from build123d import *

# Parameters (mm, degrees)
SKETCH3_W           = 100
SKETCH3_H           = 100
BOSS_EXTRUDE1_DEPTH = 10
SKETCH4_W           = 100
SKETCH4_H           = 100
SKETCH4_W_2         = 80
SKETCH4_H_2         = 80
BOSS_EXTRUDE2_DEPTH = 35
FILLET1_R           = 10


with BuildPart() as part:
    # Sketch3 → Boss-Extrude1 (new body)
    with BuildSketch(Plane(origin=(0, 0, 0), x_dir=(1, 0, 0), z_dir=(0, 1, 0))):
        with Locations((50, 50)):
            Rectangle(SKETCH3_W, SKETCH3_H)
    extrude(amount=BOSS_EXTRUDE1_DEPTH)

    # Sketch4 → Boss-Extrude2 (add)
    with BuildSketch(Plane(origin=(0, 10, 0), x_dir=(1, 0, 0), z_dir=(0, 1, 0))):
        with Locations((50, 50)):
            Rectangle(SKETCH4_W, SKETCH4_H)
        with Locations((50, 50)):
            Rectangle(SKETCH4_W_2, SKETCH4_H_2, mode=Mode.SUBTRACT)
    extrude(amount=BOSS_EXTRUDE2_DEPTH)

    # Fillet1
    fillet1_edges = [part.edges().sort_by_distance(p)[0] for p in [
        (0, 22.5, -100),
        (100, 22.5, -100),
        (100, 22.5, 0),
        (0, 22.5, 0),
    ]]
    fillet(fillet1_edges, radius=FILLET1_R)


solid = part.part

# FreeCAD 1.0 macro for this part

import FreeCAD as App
import Part
import Sketcher
from FreeCAD import Vector


def edges_at(feature, points):
    """Names of the edges that pass closest to the given points."""
    edges = feature.Shape.Edges
    near = lambda p: min(range(len(edges)), key=lambda i: edges[i].distToShape(Part.Vertex(*p))[0])
    return sorted({f"Edge{near(p) + 1}" for p in points})

doc = App.newDocument("Part")
body = doc.addObject("PartDesign::Body", "Body")

sketch1 = body.newObject("Sketcher::SketchObject", "Sketch")
sketch1.AttachmentSupport = (doc.getObject("XZ_Plane"), [""])
sketch1.MapMode = "FlatFace"
sketch1.addGeometry(Part.LineSegment(Vector(0, -100, 0), Vector(0, 0, 0)), False)
sketch1.addGeometry(Part.LineSegment(Vector(0, 0, 0), Vector(100, 0, 0)), False)
sketch1.addGeometry(Part.LineSegment(Vector(100, 0, 0), Vector(100, -100, 0)), False)
sketch1.addGeometry(Part.LineSegment(Vector(100, -100, 0), Vector(0, -100, 0)), False)
sketch1.addConstraint(Sketcher.Constraint("Coincident", 0, 2, 1, 1))
sketch1.addConstraint(Sketcher.Constraint("Coincident", 1, 2, 2, 1))
sketch1.addConstraint(Sketcher.Constraint("Coincident", 2, 2, 3, 1))
sketch1.addConstraint(Sketcher.Constraint("Coincident", 3, 2, 0, 1))
sketch1.addConstraint(Sketcher.Constraint("Vertical", 0))
sketch1.addConstraint(Sketcher.Constraint("Horizontal", 1))
sketch1.addConstraint(Sketcher.Constraint("Vertical", 2))
sketch1.addConstraint(Sketcher.Constraint("Horizontal", 3))
sketch1.addConstraint(Sketcher.Constraint("Coincident", 0, 2, -1, 1))
sketch1.addConstraint(Sketcher.Constraint("Equal", 3, 0))
sketch1.addConstraint(Sketcher.Constraint("DistanceX", 1, 1, 1, 2, 100.0))
pad1 = body.newObject("PartDesign::Pad", "Pad")
pad1.Profile = sketch1
pad1.Length = 10
pad1.Reversed = True

sketch2 = body.newObject("Sketcher::SketchObject", "Sketch001")
sketch2.AttachmentSupport = (doc.getObject("XZ_Plane"), [""])
sketch2.MapMode = "FlatFace"
sketch2.AttachmentOffset = App.Placement(Vector(0, 0, -10), App.Rotation())
sketch2.addGeometry(Part.LineSegment(Vector(0, -100, 0), Vector(0, 0, 0)), False)
sketch2.addGeometry(Part.LineSegment(Vector(0, 0, 0), Vector(100, 0, 0)), False)
sketch2.addGeometry(Part.LineSegment(Vector(100, 0, 0), Vector(100, -100, 0)), False)
sketch2.addGeometry(Part.LineSegment(Vector(100, -100, 0), Vector(0, -100, 0)), False)
sketch2.addGeometry(Part.LineSegment(Vector(90, -10, 0), Vector(10, -10, 0)), False)
sketch2.addGeometry(Part.LineSegment(Vector(10, -10, 0), Vector(10, -90, 0)), False)
sketch2.addGeometry(Part.LineSegment(Vector(10, -90, 0), Vector(90, -90, 0)), False)
sketch2.addGeometry(Part.LineSegment(Vector(90, -90, 0), Vector(90, -10, 0)), False)
sketch2.addConstraint(Sketcher.Constraint("Coincident", 0, 2, 1, 1))
sketch2.addConstraint(Sketcher.Constraint("Coincident", 1, 2, 2, 1))
sketch2.addConstraint(Sketcher.Constraint("Coincident", 2, 2, 3, 1))
sketch2.addConstraint(Sketcher.Constraint("Coincident", 3, 2, 0, 1))
sketch2.addConstraint(Sketcher.Constraint("Coincident", 4, 2, 5, 1))
sketch2.addConstraint(Sketcher.Constraint("Coincident", 5, 2, 6, 1))
sketch2.addConstraint(Sketcher.Constraint("Coincident", 6, 2, 7, 1))
sketch2.addConstraint(Sketcher.Constraint("Coincident", 7, 2, 4, 1))
sketch2.addConstraint(Sketcher.Constraint("Vertical", 0))
sketch2.addConstraint(Sketcher.Constraint("Horizontal", 1))
sketch2.addConstraint(Sketcher.Constraint("Vertical", 2))
sketch2.addConstraint(Sketcher.Constraint("Horizontal", 3))
sketch2.addConstraint(Sketcher.Constraint("Horizontal", 4))
sketch2.addConstraint(Sketcher.Constraint("Vertical", 5))
sketch2.addConstraint(Sketcher.Constraint("Horizontal", 6))
sketch2.addConstraint(Sketcher.Constraint("Vertical", 7))
sketch2.addConstraint(Sketcher.Constraint("Coincident", 0, 2, -1, 1))
sketch2.addConstraint(Sketcher.Constraint("Equal", 3, 0))
sketch2.addConstraint(Sketcher.Constraint("Equal", 6, 5))
sketch2.addConstraint(Sketcher.Constraint("DistanceX", 1, 1, 1, 2, 100.0))
sketch2.addConstraint(Sketcher.Constraint("DistanceX", 4, 2, 4, 1, 80.0))
sketch2.addConstraint(Sketcher.Constraint("DistanceX", -1, 1, 4, 2, 10.0))
sketch2.addConstraint(Sketcher.Constraint("DistanceY", 4, 2, -1, 1, 10.0))
pad2 = body.newObject("PartDesign::Pad", "Pad001")
pad2.Profile = sketch2
pad2.Length = 35
pad2.Reversed = True
doc.recompute()

fillet = body.newObject("PartDesign::Fillet", "Fillet")
fillet.Base = (pad2, edges_at(pad2, [
    (0, 22.5, -100),
    (100, 22.5, -100),
    (100, 22.5, 0),
    (0, 22.5, 0),
]))
fillet.Radius = 10

doc.recompute()
